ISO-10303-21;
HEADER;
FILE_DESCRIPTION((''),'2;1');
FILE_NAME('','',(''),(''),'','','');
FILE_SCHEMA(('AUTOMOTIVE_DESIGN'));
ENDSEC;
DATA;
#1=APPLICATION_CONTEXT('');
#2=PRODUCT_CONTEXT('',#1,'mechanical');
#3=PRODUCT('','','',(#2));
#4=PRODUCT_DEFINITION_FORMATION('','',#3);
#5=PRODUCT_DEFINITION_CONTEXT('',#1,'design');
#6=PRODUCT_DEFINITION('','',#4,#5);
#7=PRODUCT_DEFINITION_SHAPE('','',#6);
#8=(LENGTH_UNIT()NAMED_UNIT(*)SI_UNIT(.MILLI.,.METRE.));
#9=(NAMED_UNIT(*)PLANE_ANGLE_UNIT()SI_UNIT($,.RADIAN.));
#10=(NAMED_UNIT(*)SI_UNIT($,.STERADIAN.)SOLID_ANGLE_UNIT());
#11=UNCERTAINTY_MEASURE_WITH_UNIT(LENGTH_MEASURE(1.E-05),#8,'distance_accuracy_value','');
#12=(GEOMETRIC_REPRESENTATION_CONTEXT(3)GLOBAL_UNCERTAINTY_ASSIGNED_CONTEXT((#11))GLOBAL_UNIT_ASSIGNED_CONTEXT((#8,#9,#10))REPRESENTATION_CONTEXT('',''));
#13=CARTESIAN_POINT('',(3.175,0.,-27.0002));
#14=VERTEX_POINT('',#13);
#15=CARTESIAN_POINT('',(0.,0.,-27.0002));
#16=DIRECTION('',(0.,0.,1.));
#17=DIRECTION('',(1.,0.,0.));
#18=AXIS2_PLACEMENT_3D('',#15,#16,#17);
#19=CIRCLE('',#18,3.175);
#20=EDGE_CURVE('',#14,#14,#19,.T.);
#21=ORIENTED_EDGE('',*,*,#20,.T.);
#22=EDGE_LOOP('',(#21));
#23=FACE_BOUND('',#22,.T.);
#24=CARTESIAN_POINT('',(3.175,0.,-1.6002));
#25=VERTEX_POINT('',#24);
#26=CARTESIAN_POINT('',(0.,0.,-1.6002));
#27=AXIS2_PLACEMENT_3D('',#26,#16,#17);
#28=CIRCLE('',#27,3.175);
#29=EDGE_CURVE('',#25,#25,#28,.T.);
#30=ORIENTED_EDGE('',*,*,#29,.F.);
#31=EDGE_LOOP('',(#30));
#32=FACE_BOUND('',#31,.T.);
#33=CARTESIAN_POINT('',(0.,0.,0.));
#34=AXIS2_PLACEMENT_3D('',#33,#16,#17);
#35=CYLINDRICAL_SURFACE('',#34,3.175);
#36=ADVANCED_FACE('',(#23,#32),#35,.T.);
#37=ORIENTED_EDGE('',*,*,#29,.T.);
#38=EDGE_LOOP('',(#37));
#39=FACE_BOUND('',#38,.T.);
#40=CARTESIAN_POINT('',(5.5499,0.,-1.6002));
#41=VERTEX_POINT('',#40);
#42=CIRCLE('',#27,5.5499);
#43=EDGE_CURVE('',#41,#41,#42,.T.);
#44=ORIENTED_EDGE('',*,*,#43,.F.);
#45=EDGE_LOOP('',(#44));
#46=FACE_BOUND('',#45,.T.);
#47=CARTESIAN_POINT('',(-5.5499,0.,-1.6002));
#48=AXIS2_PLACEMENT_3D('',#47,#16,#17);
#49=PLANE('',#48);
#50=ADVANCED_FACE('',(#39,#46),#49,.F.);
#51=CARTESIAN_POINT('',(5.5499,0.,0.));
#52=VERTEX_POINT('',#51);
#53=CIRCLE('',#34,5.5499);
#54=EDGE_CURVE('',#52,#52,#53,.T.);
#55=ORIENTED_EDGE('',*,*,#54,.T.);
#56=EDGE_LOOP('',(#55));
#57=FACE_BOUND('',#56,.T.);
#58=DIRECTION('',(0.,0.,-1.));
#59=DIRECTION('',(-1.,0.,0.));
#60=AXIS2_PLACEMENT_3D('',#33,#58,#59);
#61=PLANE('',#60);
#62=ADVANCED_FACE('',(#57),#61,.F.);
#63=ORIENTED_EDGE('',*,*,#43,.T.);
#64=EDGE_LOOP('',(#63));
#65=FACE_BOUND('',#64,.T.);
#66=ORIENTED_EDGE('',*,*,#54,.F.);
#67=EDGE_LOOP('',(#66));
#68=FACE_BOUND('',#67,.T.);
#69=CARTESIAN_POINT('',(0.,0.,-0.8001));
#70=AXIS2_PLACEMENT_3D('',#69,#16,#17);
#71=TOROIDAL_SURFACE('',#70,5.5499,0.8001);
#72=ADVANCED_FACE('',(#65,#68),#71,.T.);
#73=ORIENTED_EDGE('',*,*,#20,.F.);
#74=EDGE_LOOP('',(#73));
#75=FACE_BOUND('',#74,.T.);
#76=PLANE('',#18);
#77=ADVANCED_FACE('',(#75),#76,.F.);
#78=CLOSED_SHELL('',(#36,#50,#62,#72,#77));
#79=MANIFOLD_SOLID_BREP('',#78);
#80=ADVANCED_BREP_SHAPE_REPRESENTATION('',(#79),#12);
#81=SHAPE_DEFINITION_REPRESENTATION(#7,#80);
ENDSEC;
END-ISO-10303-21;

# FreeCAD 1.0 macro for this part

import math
import FreeCAD as App
import Part
import Sketcher

V = App.Vector
Q = App.Units.Quantity

doc = App.newDocument("Part")
body = doc.addObject("PartDesign::Body", "Body")

# Sketch on XZ plane
sketch1 = body.newObject("Sketcher::SketchObject", "Sketch")
sketch1.AttachmentSupport = (doc.getObject("XZ_Plane"), [""])
sketch1.MapMode = "FlatFace"
sketch1.addGeometry([
    Part.LineSegment(V(-5.5, 0, 0), V(0, 0, 0)),  # 0
    Part.LineSegment(V(0, 0, 0), V(0, -27, 0)),  # 1
    Part.LineSegment(V(0, -27, 0), V(-3.2, -27, 0)),  # 2
    Part.LineSegment(V(-3.2, -27, 0), V(-3.2, -1.6, 0)),  # 3
    Part.LineSegment(V(-3.2, -1.6, 0), V(-5.5, -1.6, 0)),  # 4
    Part.ArcOfCircle(Part.Circle(V(-5.5, -0.8, 0), V(0, 0, 1), 0.8), math.radians(90), math.radians(270)),  # 5
], False)
sketch1.addConstraint([
    Sketcher.Constraint("Coincident", 0, 2, 1, 1),
    Sketcher.Constraint("Coincident", 1, 2, 2, 1),
    Sketcher.Constraint("Coincident", 2, 2, 3, 1),
    Sketcher.Constraint("Coincident", 3, 2, 4, 1),
    Sketcher.Constraint("Tangent", 4, 2, 5, 2),
    Sketcher.Constraint("Tangent", 5, 1, 0, 1),
    Sketcher.Constraint("Horizontal", 0),
    Sketcher.Constraint("Vertical", 1),
    Sketcher.Constraint("Horizontal", 2),
    Sketcher.Constraint("Vertical", 3),
    Sketcher.Constraint("Horizontal", 4),
    Sketcher.Constraint("Coincident", 0, 2, -1, 1),
    Sketcher.Constraint("DistanceY", 3, 1, 3, 2, Q("1 in")),
    Sketcher.Constraint("Radius", 5, Q("0.0315 in")),
    Sketcher.Constraint("DistanceX", 2, 2, 2, 1, Q("0.125 in")),
    Sketcher.Constraint("DistanceX", 0, 1, 0, 2, Q("0.2185 in")),
])
revolution = body.newObject("PartDesign::Revolution", "Revolution")
revolution.Profile = sketch1
revolution.ReferenceAxis = (sketch1, ["V_Axis"])
revolution.Angle = 360

doc.recompute()
